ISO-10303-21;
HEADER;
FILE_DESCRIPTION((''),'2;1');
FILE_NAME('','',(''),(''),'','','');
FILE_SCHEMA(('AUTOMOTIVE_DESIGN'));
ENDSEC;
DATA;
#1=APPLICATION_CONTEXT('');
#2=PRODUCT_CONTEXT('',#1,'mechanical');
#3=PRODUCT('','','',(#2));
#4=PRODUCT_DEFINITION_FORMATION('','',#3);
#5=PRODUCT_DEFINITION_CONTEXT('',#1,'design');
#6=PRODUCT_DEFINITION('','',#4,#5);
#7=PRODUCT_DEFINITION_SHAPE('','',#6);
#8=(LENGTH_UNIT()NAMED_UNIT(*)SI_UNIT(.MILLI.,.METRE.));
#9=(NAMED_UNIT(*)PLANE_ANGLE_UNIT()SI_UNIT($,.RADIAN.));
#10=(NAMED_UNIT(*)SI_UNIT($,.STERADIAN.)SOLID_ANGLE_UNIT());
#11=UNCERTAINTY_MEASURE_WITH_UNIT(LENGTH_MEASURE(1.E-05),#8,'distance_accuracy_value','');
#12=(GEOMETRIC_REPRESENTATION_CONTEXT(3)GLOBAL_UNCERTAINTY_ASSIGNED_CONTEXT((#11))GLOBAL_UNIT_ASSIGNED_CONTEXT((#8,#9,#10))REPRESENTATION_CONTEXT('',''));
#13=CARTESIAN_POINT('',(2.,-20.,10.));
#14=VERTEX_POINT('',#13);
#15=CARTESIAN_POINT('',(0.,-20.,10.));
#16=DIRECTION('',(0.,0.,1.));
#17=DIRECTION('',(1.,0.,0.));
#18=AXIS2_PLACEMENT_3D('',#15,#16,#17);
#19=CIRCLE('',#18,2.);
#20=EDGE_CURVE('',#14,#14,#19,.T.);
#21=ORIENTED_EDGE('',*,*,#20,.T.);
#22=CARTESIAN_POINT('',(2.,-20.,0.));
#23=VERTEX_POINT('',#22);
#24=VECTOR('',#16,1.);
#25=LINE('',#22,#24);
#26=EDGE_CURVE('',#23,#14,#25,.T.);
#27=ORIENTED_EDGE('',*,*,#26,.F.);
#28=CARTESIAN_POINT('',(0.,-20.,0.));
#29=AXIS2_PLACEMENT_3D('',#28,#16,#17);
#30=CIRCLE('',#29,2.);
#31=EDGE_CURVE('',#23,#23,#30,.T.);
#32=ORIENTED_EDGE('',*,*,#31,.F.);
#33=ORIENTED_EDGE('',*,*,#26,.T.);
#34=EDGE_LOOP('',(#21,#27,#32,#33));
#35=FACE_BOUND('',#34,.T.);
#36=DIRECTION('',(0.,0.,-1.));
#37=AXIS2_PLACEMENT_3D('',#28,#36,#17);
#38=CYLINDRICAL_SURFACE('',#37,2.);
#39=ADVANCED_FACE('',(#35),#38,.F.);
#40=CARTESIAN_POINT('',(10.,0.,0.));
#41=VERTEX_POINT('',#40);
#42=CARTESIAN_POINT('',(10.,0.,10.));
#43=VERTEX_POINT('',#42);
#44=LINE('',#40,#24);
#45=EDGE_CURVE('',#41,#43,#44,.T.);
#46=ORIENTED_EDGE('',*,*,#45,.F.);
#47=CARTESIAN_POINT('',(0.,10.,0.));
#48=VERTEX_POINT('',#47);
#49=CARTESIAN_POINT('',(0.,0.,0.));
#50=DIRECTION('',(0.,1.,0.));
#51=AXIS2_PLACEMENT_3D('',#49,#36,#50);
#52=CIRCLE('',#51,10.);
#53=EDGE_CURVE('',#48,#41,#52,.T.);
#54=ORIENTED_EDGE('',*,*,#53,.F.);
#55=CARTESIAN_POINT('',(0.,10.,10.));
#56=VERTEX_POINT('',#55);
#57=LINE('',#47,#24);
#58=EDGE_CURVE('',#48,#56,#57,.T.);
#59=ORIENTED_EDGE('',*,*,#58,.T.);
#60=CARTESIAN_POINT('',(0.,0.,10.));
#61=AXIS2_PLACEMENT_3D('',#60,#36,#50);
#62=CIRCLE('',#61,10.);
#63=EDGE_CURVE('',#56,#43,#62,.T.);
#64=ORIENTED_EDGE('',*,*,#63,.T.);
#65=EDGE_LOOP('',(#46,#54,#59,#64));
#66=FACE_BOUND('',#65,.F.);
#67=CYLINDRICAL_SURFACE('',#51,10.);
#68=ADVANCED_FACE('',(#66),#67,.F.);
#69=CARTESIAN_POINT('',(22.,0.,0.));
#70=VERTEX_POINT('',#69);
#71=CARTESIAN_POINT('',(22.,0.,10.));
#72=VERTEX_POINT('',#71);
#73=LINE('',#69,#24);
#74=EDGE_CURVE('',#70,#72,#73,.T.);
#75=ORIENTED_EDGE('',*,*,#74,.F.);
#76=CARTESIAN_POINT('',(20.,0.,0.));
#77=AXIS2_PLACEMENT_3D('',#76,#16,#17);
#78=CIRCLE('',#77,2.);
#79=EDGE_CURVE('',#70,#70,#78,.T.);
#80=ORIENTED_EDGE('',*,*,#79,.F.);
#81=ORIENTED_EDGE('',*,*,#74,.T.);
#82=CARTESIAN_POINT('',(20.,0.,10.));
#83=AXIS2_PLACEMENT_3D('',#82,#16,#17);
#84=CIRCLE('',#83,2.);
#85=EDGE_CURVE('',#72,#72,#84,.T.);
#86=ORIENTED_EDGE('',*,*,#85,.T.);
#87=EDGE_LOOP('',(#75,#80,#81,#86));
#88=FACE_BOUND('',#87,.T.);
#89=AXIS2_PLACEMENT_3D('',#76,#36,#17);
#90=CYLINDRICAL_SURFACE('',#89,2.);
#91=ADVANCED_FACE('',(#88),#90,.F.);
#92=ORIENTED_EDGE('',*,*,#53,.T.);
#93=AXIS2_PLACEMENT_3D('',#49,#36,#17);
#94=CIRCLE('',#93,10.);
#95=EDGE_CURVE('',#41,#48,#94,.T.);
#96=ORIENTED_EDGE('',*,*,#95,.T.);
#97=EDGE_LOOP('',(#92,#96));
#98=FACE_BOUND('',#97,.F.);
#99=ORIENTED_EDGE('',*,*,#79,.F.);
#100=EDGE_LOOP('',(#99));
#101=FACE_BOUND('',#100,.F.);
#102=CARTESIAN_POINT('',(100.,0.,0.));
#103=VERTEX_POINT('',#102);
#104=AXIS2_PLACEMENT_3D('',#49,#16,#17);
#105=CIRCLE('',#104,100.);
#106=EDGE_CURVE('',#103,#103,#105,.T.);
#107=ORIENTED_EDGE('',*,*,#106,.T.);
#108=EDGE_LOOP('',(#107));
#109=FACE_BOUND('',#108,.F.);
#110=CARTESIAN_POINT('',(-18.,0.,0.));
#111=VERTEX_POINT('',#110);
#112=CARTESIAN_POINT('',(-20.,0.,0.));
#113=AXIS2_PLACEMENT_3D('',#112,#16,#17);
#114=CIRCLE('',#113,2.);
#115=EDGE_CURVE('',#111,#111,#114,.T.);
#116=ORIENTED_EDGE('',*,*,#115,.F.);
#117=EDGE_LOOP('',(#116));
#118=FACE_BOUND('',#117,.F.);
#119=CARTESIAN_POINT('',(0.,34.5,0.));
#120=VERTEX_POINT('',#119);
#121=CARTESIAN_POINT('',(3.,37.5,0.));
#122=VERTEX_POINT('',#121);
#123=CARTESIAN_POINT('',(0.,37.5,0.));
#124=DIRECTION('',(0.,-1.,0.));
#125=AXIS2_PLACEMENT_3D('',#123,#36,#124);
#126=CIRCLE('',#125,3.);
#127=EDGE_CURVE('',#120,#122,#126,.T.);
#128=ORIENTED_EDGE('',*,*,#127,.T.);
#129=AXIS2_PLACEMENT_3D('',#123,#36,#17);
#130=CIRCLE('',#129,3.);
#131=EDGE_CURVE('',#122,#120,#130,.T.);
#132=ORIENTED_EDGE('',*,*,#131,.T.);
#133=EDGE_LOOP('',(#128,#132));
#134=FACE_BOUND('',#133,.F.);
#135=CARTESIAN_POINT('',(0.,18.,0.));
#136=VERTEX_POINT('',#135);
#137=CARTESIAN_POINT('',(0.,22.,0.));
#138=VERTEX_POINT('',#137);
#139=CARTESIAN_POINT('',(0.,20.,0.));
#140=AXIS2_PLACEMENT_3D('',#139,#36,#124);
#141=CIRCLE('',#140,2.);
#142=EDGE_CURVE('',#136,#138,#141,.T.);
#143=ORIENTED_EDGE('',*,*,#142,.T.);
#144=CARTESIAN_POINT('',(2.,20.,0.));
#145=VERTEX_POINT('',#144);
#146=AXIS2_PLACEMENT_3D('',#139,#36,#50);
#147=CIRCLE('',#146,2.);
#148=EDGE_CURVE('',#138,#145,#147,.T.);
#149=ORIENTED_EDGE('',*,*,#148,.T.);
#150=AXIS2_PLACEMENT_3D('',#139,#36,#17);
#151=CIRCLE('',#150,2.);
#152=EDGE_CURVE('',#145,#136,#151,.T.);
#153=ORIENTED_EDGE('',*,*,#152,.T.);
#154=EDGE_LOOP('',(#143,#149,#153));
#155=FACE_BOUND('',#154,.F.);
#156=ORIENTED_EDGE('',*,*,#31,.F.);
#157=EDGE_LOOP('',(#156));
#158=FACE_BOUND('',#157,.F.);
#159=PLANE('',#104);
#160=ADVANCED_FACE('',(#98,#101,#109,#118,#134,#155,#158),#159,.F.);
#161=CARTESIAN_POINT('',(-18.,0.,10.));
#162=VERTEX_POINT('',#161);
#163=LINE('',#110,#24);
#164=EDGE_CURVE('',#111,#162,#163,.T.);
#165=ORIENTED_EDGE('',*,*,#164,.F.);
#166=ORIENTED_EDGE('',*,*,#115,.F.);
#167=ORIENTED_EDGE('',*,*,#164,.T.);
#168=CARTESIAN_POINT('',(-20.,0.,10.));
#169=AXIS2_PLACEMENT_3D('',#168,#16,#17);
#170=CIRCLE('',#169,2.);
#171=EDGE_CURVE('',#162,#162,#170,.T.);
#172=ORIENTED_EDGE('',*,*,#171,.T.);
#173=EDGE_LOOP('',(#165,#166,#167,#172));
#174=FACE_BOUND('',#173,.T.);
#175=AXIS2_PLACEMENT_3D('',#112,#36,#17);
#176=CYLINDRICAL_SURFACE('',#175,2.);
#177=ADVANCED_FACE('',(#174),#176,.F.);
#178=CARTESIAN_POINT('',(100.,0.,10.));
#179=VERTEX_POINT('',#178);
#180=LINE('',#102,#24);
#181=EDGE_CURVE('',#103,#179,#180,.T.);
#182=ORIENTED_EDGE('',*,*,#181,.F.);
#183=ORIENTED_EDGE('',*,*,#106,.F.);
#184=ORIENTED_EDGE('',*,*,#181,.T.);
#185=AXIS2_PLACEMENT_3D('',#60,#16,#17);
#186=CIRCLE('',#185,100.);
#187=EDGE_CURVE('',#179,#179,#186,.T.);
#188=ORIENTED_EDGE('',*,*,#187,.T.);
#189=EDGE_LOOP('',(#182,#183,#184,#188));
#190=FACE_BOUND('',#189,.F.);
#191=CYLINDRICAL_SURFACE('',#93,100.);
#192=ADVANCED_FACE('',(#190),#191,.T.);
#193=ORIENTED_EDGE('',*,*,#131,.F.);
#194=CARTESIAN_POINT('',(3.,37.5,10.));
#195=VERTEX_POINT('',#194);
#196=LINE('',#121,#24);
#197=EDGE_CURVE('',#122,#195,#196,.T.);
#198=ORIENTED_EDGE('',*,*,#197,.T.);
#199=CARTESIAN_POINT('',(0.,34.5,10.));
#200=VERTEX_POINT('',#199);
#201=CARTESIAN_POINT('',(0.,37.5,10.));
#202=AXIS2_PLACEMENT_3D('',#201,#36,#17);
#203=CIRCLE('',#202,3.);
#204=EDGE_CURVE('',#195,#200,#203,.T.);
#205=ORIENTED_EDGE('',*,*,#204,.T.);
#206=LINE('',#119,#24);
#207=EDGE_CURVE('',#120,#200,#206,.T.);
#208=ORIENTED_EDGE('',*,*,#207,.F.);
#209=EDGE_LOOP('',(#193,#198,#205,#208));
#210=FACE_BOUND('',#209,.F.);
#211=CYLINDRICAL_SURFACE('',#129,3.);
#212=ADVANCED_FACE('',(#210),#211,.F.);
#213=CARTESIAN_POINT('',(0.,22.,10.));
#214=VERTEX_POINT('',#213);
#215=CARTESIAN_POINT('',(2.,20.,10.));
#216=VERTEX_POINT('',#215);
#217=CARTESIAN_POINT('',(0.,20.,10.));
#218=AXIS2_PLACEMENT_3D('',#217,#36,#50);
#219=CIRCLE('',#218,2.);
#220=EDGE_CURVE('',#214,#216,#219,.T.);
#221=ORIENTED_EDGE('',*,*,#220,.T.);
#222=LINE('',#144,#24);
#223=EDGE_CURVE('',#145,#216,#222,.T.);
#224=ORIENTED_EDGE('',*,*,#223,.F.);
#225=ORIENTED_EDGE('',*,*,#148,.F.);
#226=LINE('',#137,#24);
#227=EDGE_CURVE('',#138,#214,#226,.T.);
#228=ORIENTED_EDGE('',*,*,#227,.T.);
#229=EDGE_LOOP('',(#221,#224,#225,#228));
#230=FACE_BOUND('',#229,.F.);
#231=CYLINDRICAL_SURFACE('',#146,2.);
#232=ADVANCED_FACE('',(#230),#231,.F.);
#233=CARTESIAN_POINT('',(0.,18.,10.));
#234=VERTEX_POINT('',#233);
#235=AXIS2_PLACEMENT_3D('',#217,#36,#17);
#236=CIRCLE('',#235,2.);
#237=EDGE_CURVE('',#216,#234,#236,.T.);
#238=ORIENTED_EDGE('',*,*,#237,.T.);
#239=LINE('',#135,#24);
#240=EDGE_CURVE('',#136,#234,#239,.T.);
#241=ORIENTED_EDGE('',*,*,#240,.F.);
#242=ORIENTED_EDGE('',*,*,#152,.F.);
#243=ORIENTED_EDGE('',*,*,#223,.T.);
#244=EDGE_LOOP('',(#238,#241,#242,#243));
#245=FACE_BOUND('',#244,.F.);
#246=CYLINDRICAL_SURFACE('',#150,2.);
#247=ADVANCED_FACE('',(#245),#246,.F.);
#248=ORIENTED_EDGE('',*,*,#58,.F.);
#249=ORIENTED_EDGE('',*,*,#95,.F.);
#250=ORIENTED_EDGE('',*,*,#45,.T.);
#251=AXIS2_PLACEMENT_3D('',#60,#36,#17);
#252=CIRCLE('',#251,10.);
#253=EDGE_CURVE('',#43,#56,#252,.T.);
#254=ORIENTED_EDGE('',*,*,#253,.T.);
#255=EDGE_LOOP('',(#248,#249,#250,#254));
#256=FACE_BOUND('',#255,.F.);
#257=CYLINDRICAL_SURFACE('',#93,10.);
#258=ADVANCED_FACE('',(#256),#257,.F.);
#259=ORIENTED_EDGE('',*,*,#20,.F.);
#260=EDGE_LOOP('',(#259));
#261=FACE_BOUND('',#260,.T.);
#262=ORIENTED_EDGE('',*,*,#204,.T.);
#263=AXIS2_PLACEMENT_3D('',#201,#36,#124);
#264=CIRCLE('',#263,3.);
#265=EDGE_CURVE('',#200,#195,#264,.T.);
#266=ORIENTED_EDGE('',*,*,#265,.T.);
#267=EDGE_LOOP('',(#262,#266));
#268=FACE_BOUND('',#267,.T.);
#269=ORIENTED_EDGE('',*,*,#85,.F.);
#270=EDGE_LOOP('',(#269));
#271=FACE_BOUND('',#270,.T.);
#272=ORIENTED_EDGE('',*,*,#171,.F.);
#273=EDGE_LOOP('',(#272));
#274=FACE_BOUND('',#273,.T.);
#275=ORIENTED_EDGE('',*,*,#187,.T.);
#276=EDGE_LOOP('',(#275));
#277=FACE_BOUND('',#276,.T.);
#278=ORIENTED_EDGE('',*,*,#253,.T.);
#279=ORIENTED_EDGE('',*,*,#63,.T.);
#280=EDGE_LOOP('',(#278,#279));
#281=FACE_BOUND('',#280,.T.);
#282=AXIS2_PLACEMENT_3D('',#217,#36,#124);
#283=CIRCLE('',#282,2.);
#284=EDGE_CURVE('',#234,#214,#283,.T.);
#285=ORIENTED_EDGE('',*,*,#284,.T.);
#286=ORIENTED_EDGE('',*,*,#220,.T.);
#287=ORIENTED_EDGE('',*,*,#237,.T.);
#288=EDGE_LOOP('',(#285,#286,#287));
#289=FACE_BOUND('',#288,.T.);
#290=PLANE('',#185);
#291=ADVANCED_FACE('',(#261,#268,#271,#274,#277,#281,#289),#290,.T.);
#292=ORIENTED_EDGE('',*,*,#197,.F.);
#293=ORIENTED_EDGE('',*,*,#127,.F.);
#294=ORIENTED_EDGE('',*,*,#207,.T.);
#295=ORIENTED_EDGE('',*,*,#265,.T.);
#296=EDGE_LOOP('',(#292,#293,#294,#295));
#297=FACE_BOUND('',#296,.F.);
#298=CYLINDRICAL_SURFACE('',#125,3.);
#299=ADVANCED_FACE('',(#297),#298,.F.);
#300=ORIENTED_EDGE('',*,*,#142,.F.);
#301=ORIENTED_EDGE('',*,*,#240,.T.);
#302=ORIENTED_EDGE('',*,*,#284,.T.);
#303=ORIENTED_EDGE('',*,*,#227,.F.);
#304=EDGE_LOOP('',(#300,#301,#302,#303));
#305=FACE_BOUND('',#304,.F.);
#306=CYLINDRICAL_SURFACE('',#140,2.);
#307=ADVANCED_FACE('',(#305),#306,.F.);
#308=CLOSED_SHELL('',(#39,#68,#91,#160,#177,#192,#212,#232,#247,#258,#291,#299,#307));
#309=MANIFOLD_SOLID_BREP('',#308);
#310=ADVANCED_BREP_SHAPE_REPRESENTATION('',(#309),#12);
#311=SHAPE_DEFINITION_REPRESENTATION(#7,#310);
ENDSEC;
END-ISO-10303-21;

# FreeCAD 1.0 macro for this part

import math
import FreeCAD as App
import Part
import Sketcher

V = App.Vector
Q = App.Units.Quantity

doc = App.newDocument("Part")
body = doc.addObject("PartDesign::Body", "Body")

sketch1 = body.newObject("Sketcher::SketchObject", "Sketch")
sketch1.AttachmentSupport = (doc.getObject("XY_Plane"), [""])
sketch1.MapMode = "FlatFace"
sketch1.addGeometry(Part.Circle(V(0, 0, 0), V(0, 0, 1), 100), False)
sketch1.addGeometry(Part.Circle(V(-20, 0, 0), V(0, 0, 1), 2), False)
sketch1.addGeometry(Part.ArcOfCircle(Part.Circle(V(0, 0, 0), V(0, 0, 1), 10), math.radians(90), math.radians(360)), False)
sketch1.addGeometry(Part.ArcOfCircle(Part.Circle(V(0, 0, 0), V(0, 0, 1), 10), math.radians(0), math.radians(90)), False)
sketch1.addGeometry(Part.Circle(V(0, -20, 0), V(0, 0, 1), 2), False)
sketch1.addGeometry(Part.Circle(V(20, 0, 0), V(0, 0, 1), 2), False)
sketch1.addGeometry(Part.ArcOfCircle(Part.Circle(V(0, 37.5, 0), V(0, 0, 1), 3), math.radians(0), math.radians(270)), False)
sketch1.addGeometry(Part.ArcOfCircle(Part.Circle(V(0, 37.5, 0), V(0, 0, 1), 3), math.radians(-90), math.radians(0)), False)
sketch1.addGeometry(Part.ArcOfCircle(Part.Circle(V(0, 20, 0), V(0, 0, 1), 2), math.radians(0), math.radians(90)), False)
sketch1.addGeometry(Part.ArcOfCircle(Part.Circle(V(0, 20, 0), V(0, 0, 1), 2), math.radians(-90), math.radians(0)), False)
sketch1.addGeometry(Part.ArcOfCircle(Part.Circle(V(0, 20, 0), V(0, 0, 1), 2), math.radians(90), math.radians(270)), False)
sketch1.addConstraint(Sketcher.Constraint("Tangent", 2, 1, 3, 2))
sketch1.addConstraint(Sketcher.Constraint("Coincident", 3, 1, 2, 2))
sketch1.addConstraint(Sketcher.Constraint("Tangent", 6, 1, 7, 2))
sketch1.addConstraint(Sketcher.Constraint("Coincident", 7, 1, 6, 2))
sketch1.addConstraint(Sketcher.Constraint("Tangent", 8, 1, 9, 2))
sketch1.addConstraint(Sketcher.Constraint("Tangent", 9, 1, 10, 2))
sketch1.addConstraint(Sketcher.Constraint("Tangent", 10, 1, 8, 2))
sketch1.addConstraint(Sketcher.Constraint("Coincident", 0, 3, -1, 1))
sketch1.addConstraint(Sketcher.Constraint("Coincident", 2, 3, -1, 1))
sketch1.addConstraint(Sketcher.Constraint("Equal", 1, 4))
sketch1.addConstraint(Sketcher.Constraint("Equal", 4, 5))
sketch1.addConstraint(Sketcher.Constraint("Equal", 5, 8))
sketch1.addConstraint(Sketcher.Constraint("Symmetric", 1, 3, 5, 3, -1, 1))
sketch1.addConstraint(Sketcher.Constraint("Symmetric", 4, 3, 8, 3, -1, 1))
sketch1.addConstraint(Sketcher.Constraint("PointOnObject", 1, 3, -1))
sketch1.addConstraint(Sketcher.Constraint("PointOnObject", 4, 3, -2))
sketch1.addConstraint(Sketcher.Constraint("PointOnObject", 6, 3, -2))
sketch1.addConstraint(Sketcher.Constraint("PointOnObject", 2, 1, -2))
sketch1.addConstraint(Sketcher.Constraint("PointOnObject", 3, 1, -1))
sketch1.addConstraint(Sketcher.Constraint("PointOnObject", 7, 1, -2))
sketch1.addConstraint(Sketcher.Constraint("PointOnObject", 9, 1, -2))
sketch1.addConstraint(Sketcher.Constraint("PointOnObject", 10, 1, -2))
sketch1.addConstraint(Sketcher.Constraint("Horizontal", 7, 3, 6, 1))
sketch1.addConstraint(Sketcher.Constraint("Horizontal", 10, 3, 8, 1))
sketch1.addConstraint(Sketcher.Constraint("Diameter", 0, Q("200 mm")))
sketch1.addConstraint(Sketcher.Constraint("Diameter", 1, Q("4 mm")))
sketch1.addConstraint(Sketcher.Constraint("Radius", 2, Q("10 mm")))
sketch1.addConstraint(Sketcher.Constraint("Radius", 6, Q("3 mm")))
sketch1.addConstraint(Sketcher.Constraint("DistanceX", 1, 3, -1, 1, Q("20 mm")))
sketch1.addConstraint(Sketcher.Constraint("DistanceY", 4, 3, -1, 1, Q("20 mm")))
sketch1.addConstraint(Sketcher.Constraint("DistanceY", -1, 1, 6, 3, Q("37.5 mm")))
pad1 = body.newObject("PartDesign::Pad", "Pad")
pad1.Profile = sketch1
pad1.Length = 10

doc.recompute()
